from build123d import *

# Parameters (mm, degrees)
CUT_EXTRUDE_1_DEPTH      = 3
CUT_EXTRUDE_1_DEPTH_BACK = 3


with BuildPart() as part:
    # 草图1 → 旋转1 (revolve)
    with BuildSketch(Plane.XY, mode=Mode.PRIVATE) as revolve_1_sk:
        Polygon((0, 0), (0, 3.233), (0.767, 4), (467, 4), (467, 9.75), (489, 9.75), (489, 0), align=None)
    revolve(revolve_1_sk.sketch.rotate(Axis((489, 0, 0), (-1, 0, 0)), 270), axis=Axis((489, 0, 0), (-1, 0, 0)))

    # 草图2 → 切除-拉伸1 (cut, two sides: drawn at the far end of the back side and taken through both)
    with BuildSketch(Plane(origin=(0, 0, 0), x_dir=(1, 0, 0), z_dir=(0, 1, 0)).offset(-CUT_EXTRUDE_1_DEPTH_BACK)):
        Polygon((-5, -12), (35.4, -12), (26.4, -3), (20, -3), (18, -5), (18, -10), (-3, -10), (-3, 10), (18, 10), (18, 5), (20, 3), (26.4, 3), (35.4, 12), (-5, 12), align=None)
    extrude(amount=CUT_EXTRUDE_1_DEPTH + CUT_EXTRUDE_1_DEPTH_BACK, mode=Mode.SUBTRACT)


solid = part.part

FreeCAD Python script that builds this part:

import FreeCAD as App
import Part
import Sketcher
from FreeCAD import Vector
Q = App.Units.Quantity

doc = App.newDocument("Part")
body = doc.addObject("PartDesign::Body", "Body")

# Sketch on XY plane
sketch1 = body.newObject("Sketcher::SketchObject", "Sketch")
sketch1.AttachmentSupport = (doc.getObject("XY_Plane"), [""])
sketch1.MapMode = "FlatFace"
sketch1.addGeometry([
    Part.LineSegment(Vector(0, 3.2, 0), Vector(0, 0, 0)),  # 0
    Part.LineSegment(Vector(0, 0, 0), Vector(489, 0, 0)),  # 1
    Part.LineSegment(Vector(489, 0, 0), Vector(489, 9.8, 0)),  # 2
    Part.LineSegment(Vector(489, 9.8, 0), Vector(467, 9.8, 0)),  # 3
    Part.LineSegment(Vector(467, 9.8, 0), Vector(467, 4, 0)),  # 4
    Part.LineSegment(Vector(467, 4, 0), Vector(0.8, 4, 0)),  # 5
    Part.LineSegment(Vector(0.8, 4, 0), Vector(0, 3.2, 0)),  # 6
], False)
sketch1.addConstraint([
    Sketcher.Constraint("Coincident", 0, 2, 1, 1),
    Sketcher.Constraint("Coincident", 1, 2, 2, 1),
    Sketcher.Constraint("Coincident", 2, 2, 3, 1),
    Sketcher.Constraint("Coincident", 3, 2, 4, 1),
    Sketcher.Constraint("Coincident", 4, 2, 5, 1),
    Sketcher.Constraint("Coincident", 5, 2, 6, 1),
    Sketcher.Constraint("Coincident", 6, 2, 0, 1),
    Sketcher.Constraint("Vertical", 0),
    Sketcher.Constraint("Horizontal", 1),
    Sketcher.Constraint("Vertical", 2),
    Sketcher.Constraint("Horizontal", 3),
    Sketcher.Constraint("Vertical", 4),
    Sketcher.Constraint("Horizontal", 5),
    Sketcher.Constraint("Coincident", 0, 2, -1, 1),
    Sketcher.Constraint("DistanceX", 1, 1, 1, 2, Q("489 mm")),
    Sketcher.Constraint("DistanceX", 3, 2, 3, 1, Q("22 mm")),
    Sketcher.Constraint("Angle", 6, Q("-135 deg")),
    Sketcher.Constraint("DistanceY", -1, 1, 4, 2, Q("4 mm")),
    Sketcher.Constraint("DistanceY", 2, 1, 2, 2, Q("9.75 mm")),
    Sketcher.Constraint("DistanceX", 5, 2, 5, 1, Q("466.233 mm")),
])
revolution = body.newObject("PartDesign::Revolution", "Revolution")
revolution.Profile = sketch1
revolution.ReferenceAxis = (sketch1, ["H_Axis"])
revolution.Angle = 360

# Sketch on XZ plane
sketch2 = body.newObject("Sketcher::SketchObject", "Sketch001")
sketch2.AttachmentSupport = (doc.getObject("XZ_Plane"), [""])
sketch2.MapMode = "FlatFace"
sketch2.addGeometry([
    Part.LineSegment(Vector(-5, 12, 0), Vector(35.4, 12, 0)),  # 0
    Part.LineSegment(Vector(35.4, 12, 0), Vector(26.4, 3, 0)),  # 1
    Part.LineSegment(Vector(26.4, 3, 0), Vector(20, 3, 0)),  # 2
    Part.LineSegment(Vector(20, 3, 0), Vector(18, 5, 0)),  # 3
    Part.LineSegment(Vector(18, 5, 0), Vector(18, 10, 0)),  # 4
    Part.LineSegment(Vector(18, 10, 0), Vector(-3, 10, 0)),  # 5
    Part.LineSegment(Vector(-3, 10, 0), Vector(-3, -10, 0)),  # 6
    Part.LineSegment(Vector(-3, -10, 0), Vector(18, -10, 0)),  # 7
    Part.LineSegment(Vector(18, -10, 0), Vector(18, -5, 0)),  # 8
    Part.LineSegment(Vector(18, -5, 0), Vector(20, -3, 0)),  # 9
    Part.LineSegment(Vector(20, -3, 0), Vector(26.4, -3, 0)),  # 10
    Part.LineSegment(Vector(26.4, -3, 0), Vector(35.4, -12, 0)),  # 11
    Part.LineSegment(Vector(35.4, -12, 0), Vector(-5, -12, 0)),  # 12
    Part.LineSegment(Vector(-5, -12, 0), Vector(-5, 12, 0)),  # 13
], False)
sketch2.addConstraint([
    Sketcher.Constraint("Coincident", 0, 2, 1, 1),
    Sketcher.Constraint("Coincident", 1, 2, 2, 1),
    Sketcher.Constraint("Coincident", 2, 2, 3, 1),
    Sketcher.Constraint("Coincident", 3, 2, 4, 1),
    Sketcher.Constraint("Coincident", 4, 2, 5, 1),
    Sketcher.Constraint("Coincident", 5, 2, 6, 1),
    Sketcher.Constraint("Coincident", 6, 2, 7, 1),
    Sketcher.Constraint("Coincident", 7, 2, 8, 1),
    Sketcher.Constraint("Coincident", 8, 2, 9, 1),
    Sketcher.Constraint("Coincident", 9, 2, 10, 1),
    Sketcher.Constraint("Coincident", 10, 2, 11, 1),
    Sketcher.Constraint("Coincident", 11, 2, 12, 1),
    Sketcher.Constraint("Coincident", 12, 2, 13, 1),
    Sketcher.Constraint("Coincident", 13, 2, 0, 1),
    Sketcher.Constraint("Horizontal", 0),
    Sketcher.Constraint("Horizontal", 2),
    Sketcher.Constraint("Vertical", 4),
    Sketcher.Constraint("Horizontal", 5),
    Sketcher.Constraint("Vertical", 6),
    Sketcher.Constraint("Horizontal", 7),
    Sketcher.Constraint("Vertical", 8),
    Sketcher.Constraint("Horizontal", 10),
    Sketcher.Constraint("Horizontal", 12),
    Sketcher.Constraint("Vertical", 13),
    Sketcher.Constraint("Symmetric", 4, 2, 7, 2, -1),
    Sketcher.Constraint("Symmetric", 2, 2, 9, 2, -1),
    Sketcher.Constraint("Symmetric", 0, 2, 11, 2, -1),
    Sketcher.Constraint("Perpendicular", 1, 3),
    Sketcher.Constraint("Perpendicular", 3, 9),
    Sketcher.Constraint("Perpendicular", 9, 11),
    Sketcher.Constraint("Vertical", 1, 2, 10, 2),
    Sketcher.Constraint("DistanceX", 5, 2, 5, 1, Q("21 mm")),
    Sketcher.Constraint("DistanceY", 4, 1, 4, 2, Q("5 mm")),
    Sketcher.Constraint("DistanceY", 6, 2, 6, 1, Q("20 mm")),
    Sketcher.Constraint("DistanceY", 13, 1, 13, 2, Q("24 mm")),
    Sketcher.Constraint("DistanceX", 0, 1, 0, 2, Q("40.4 mm")),
    Sketcher.Constraint("DistanceX", 2, 2, 2, 1, Q("6.4 mm")),
    Sketcher.Constraint("DistanceY", -1, 1, 1, 2, Q("3 mm")),
    Sketcher.Constraint("DistanceX", -1, 1, 2, 2, Q("20 mm")),
])
pocket1 = body.newObject("PartDesign::Pocket", "Pocket")
pocket1.Profile = sketch2
pocket1.Type = "ThroughAll"
pocket1.Midplane = True

doc.recompute()
